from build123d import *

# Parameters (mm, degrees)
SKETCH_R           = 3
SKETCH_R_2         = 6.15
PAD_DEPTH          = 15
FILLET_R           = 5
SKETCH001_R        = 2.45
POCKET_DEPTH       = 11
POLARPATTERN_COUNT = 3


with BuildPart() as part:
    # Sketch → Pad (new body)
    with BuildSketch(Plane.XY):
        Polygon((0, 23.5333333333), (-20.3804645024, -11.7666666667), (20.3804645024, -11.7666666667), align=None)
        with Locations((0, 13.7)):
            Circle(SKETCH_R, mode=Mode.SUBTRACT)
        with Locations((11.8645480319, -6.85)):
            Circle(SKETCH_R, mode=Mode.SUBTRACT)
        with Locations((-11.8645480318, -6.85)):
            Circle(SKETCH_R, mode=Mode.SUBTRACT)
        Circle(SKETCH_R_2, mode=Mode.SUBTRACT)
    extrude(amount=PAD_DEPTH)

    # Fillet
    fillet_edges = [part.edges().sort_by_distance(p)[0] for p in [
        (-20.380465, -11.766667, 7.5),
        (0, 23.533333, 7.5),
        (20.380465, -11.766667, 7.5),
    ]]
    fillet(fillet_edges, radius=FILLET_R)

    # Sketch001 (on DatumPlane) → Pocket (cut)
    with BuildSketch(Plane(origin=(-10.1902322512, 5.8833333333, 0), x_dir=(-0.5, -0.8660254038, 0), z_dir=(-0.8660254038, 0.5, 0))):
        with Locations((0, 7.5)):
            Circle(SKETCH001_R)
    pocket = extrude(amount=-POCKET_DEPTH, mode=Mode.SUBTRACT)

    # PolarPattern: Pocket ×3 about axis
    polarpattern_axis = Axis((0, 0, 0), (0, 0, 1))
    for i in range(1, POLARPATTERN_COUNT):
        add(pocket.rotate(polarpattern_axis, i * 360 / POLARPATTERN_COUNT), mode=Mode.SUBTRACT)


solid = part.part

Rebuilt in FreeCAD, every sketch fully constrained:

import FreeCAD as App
import Part
import Sketcher
from FreeCAD import Vector
Q = App.Units.Quantity


def edges_at(feature, points):
    """Names of the edges that pass closest to the given points."""
    edges = feature.Shape.Edges
    near = lambda p: min(range(len(edges)), key=lambda i: edges[i].distToShape(Part.Vertex(*p))[0])
    return sorted({f"Edge{near(p) + 1}" for p in points})

doc = App.newDocument("Part")
body = doc.addObject("PartDesign::Body", "Body")

sketch1 = body.newObject("Sketcher::SketchObject", "Sketch")
sketch1.AttachmentSupport = (doc.getObject("XY_Plane"), [""])
sketch1.MapMode = "FlatFace"
sketch1.addGeometry([
    Part.LineSegment(Vector(0, 23.5, 0), Vector(-20.4, -11.8, 0)),
    Part.LineSegment(Vector(-20.4, -11.8, 0), Vector(20.4, -11.8, 0)),
    Part.LineSegment(Vector(20.4, -11.8, 0), Vector(0, 23.5, 0)),
    Part.Circle(Vector(-11.9, -6.8, 0), Vector(0, 0, 1), 3),
    Part.Circle(Vector(0, 0, 0), Vector(0, 0, 1), 6.2),
    Part.Circle(Vector(11.9, -6.8, 0), Vector(0, 0, 1), 3),
    Part.Circle(Vector(0, 13.7, 0), Vector(0, 0, 1), 3),
], False)
sketch1.addConstraint([
    Sketcher.Constraint("Coincident", 0, 2, 1, 1),
    Sketcher.Constraint("Coincident", 1, 2, 2, 1),
    Sketcher.Constraint("Coincident", 2, 2, 0, 1),
    Sketcher.Constraint("Horizontal", 1),
    Sketcher.Constraint("Coincident", 4, 3, -1, 1),
    Sketcher.Constraint("Equal", 3, 5),
    Sketcher.Constraint("Equal", 5, 6),
    Sketcher.Constraint("Symmetric", 3, 3, 5, 3, -2),
    Sketcher.Constraint("PointOnObject", 6, 3, -2),
    Sketcher.Constraint("PointOnObject", 2, 2, -2),
    Sketcher.Constraint("Equal", 0, 2),
    Sketcher.Constraint("Diameter", 3, 6.0),
    Sketcher.Constraint("Diameter", 4, 12.3),
    Sketcher.Constraint("Angle", 0, Q("-120 deg")),
    Sketcher.Constraint("DistanceY", -1, 1, 6, 3, 13.7),
    Sketcher.Constraint("DistanceY", 0, 2, 2, 2, 35.3),
    Sketcher.Constraint("DistanceY", 3, 3, -1, 1, 6.85),
    Sketcher.Constraint("DistanceX", 3, 3, -1, 1, 11.864548),
    Sketcher.Constraint("DistanceY", 0, 2, -1, 1, 11.766667),
])
pad1 = body.newObject("PartDesign::Pad", "Pad")
pad1.Profile = sketch1
pad1.Length = 15
doc.recompute()

fillet = body.newObject("PartDesign::Fillet", "Fillet")
fillet.Base = (pad1, edges_at(pad1, [(-20.38, -11.767, 7.5), (0, 23.533, 7.5), (20.38, -11.767, 7.5)]))
fillet.Radius = 5

sketch2 = body.newObject("Sketcher::SketchObject", "Sketch001")
sketch2.Placement = App.Placement(Vector(-10.190232, 5.883333, 0), App.Rotation(Vector(-0.5, -0.866025404, 0), Vector(0, 0, 1), Vector(-0.866025404, 0.5, 0), "ZXY"))
sketch2.addGeometry(Part.Circle(Vector(0, 7.5, 0), Vector(0, 0, 1), 2.5), False)
sketch2.addConstraint([
    Sketcher.Constraint("PointOnObject", 0, 3, -2),
    Sketcher.Constraint("Diameter", 0, 4.9),
    Sketcher.Constraint("DistanceY", -1, 1, 0, 3, 7.5),
])
pocket1 = body.newObject("PartDesign::Pocket", "Pocket")
pocket1.Profile = sketch2
pocket1.Length = 11
doc.recompute()

polarpattern = body.newObject("PartDesign::PolarPattern", "PolarPattern")
polarpattern.Originals = [pocket1]
polarpattern.Axis = (doc.getObject("Z_Axis"), [""])
polarpattern.Angle = 360
polarpattern.Occurrences = 3
body.Tip = polarpattern

doc.recompute()
